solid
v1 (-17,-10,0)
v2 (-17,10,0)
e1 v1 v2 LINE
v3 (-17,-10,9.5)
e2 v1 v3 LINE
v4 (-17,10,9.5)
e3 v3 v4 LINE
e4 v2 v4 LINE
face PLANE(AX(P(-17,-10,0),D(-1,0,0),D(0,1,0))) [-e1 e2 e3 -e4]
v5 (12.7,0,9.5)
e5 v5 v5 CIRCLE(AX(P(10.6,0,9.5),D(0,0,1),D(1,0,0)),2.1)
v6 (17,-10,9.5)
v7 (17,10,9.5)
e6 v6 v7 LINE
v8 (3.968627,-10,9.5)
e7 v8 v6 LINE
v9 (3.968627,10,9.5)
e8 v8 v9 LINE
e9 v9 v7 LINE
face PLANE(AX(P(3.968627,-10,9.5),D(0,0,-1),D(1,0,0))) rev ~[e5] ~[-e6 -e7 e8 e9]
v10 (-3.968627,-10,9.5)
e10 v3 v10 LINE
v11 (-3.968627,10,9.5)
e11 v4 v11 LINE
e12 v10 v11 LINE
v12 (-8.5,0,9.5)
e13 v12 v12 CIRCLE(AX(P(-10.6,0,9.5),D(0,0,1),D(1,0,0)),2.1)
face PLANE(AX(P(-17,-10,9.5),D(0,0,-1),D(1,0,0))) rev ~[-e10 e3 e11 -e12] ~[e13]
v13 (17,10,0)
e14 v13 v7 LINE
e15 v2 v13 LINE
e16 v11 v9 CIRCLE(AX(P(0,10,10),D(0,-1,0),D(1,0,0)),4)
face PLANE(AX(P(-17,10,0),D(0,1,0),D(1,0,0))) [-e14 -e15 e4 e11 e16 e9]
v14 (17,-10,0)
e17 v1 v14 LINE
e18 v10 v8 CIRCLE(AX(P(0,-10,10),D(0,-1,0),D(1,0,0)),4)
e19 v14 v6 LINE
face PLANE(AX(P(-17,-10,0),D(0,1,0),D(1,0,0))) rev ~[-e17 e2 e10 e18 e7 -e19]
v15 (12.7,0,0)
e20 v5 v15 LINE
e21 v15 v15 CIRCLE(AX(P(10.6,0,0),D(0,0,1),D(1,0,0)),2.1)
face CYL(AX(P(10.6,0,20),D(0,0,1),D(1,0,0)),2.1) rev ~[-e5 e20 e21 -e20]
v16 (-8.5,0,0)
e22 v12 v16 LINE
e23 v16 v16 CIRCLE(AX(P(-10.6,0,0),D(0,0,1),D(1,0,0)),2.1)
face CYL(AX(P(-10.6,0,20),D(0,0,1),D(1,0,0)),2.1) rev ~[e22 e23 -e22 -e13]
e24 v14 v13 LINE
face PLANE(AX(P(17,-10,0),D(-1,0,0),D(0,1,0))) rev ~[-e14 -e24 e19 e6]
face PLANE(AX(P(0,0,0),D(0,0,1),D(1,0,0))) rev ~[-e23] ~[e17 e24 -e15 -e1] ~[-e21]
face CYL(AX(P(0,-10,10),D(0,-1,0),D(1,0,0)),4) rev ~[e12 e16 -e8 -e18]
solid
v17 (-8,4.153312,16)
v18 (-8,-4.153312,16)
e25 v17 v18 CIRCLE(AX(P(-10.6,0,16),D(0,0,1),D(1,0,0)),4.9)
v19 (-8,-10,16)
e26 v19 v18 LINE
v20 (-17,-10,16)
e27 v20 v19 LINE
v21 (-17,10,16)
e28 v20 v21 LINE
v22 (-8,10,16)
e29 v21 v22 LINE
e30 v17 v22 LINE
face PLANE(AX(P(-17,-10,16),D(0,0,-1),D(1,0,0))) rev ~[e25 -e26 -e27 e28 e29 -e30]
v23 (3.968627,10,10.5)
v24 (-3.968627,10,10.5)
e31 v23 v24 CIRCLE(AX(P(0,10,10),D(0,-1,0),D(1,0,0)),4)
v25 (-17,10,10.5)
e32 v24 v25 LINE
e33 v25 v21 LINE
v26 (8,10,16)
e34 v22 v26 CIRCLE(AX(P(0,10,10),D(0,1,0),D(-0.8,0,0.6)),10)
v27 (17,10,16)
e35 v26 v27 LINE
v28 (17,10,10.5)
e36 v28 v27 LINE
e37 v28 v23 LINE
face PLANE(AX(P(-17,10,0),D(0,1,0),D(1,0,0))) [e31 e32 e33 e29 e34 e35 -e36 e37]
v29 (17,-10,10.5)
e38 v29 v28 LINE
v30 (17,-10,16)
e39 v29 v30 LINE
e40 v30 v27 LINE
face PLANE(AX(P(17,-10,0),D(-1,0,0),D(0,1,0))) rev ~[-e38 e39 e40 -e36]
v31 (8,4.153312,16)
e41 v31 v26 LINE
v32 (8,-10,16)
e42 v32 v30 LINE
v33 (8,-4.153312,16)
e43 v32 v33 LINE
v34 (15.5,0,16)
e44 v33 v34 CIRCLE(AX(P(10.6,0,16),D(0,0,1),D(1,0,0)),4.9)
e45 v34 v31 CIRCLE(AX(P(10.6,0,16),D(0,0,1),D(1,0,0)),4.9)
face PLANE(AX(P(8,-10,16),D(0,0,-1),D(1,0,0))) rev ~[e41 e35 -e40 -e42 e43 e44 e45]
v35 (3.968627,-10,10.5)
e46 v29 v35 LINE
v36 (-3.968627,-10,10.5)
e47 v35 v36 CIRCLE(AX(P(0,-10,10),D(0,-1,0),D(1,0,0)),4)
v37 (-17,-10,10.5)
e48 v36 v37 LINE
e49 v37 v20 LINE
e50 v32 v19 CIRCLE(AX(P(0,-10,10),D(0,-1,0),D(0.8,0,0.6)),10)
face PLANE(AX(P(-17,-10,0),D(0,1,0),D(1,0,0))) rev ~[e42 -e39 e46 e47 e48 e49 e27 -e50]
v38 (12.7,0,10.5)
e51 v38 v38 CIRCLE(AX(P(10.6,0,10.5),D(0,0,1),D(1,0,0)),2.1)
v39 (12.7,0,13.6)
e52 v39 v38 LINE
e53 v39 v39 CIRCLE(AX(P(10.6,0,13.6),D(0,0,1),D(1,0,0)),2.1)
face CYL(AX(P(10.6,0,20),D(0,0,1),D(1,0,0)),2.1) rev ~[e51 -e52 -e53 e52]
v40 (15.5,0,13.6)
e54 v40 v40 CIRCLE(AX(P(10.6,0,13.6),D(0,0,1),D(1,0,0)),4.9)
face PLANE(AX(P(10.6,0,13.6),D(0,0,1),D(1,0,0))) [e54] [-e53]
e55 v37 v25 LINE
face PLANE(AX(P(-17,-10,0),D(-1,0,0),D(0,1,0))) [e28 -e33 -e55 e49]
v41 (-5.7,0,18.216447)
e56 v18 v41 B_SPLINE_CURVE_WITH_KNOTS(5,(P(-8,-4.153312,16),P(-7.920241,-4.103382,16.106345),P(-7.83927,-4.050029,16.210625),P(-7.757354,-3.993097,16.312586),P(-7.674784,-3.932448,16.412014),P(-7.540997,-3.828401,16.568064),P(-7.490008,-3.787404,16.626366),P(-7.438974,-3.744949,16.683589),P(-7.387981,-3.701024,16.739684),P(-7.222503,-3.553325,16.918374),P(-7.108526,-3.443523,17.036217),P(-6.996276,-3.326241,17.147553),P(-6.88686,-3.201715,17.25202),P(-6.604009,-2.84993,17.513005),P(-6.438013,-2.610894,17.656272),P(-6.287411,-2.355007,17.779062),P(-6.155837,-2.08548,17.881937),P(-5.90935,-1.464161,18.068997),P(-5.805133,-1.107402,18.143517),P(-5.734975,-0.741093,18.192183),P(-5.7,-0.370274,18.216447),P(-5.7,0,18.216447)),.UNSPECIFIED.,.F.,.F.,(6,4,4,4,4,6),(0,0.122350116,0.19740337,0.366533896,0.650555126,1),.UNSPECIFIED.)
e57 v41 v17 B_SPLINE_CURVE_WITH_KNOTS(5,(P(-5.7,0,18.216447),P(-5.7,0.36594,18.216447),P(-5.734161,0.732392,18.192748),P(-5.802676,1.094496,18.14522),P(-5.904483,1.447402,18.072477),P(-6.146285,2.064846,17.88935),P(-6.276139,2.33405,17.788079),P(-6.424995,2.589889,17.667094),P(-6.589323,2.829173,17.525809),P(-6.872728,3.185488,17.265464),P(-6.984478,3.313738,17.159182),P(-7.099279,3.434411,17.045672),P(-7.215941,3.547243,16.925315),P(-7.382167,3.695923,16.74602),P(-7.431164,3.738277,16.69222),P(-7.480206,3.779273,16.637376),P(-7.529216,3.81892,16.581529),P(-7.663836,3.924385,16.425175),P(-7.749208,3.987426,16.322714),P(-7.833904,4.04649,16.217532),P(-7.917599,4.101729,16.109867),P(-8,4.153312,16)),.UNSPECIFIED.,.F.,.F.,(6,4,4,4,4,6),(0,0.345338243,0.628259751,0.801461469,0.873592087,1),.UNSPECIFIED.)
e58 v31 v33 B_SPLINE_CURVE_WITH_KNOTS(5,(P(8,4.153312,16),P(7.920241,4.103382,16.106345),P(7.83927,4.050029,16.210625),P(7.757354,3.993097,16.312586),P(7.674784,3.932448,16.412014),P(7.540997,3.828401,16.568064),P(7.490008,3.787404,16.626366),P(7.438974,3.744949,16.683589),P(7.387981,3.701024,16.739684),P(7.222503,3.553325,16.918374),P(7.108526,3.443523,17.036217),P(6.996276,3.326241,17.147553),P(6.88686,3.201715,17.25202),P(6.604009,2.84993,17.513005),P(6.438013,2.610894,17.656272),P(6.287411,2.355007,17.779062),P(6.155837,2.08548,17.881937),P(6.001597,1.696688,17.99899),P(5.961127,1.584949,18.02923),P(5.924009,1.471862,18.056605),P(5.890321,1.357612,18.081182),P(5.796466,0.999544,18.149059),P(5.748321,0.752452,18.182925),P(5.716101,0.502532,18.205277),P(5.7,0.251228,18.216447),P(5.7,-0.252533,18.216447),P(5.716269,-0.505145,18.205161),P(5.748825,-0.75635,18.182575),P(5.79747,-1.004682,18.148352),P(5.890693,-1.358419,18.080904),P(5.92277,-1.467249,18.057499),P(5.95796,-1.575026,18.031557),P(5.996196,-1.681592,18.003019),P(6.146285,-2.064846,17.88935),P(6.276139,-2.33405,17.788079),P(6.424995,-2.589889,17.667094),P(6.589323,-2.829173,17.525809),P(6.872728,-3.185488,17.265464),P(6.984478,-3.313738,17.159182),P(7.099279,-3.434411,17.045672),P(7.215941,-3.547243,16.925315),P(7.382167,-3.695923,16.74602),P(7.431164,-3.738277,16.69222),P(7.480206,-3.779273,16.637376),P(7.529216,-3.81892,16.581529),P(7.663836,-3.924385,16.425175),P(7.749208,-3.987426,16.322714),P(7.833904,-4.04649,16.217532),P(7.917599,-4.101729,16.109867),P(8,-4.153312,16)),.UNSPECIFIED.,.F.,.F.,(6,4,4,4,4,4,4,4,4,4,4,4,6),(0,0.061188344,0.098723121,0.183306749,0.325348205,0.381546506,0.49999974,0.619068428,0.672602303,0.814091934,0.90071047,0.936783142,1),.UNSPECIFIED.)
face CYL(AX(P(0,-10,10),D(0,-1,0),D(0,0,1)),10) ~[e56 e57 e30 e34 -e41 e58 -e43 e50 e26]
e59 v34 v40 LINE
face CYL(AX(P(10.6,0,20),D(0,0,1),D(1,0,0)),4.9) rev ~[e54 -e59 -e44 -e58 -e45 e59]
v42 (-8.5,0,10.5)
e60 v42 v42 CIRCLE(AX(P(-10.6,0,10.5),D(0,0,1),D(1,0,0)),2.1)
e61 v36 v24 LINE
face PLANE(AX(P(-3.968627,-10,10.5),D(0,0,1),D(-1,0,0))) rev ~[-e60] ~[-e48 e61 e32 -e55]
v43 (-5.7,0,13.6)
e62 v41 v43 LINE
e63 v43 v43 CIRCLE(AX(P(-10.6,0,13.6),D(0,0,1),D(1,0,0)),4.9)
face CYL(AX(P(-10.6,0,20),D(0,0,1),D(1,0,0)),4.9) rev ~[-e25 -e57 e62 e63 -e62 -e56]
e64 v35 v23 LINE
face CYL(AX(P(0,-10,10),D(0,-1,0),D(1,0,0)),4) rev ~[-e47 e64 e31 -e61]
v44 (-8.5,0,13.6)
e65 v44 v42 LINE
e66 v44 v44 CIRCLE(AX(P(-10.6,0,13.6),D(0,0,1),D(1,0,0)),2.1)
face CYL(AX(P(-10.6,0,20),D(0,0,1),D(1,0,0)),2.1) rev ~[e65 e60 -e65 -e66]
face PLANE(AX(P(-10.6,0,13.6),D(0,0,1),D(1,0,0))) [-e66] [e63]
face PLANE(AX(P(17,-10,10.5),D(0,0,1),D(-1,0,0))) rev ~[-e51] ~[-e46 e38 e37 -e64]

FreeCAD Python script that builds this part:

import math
import FreeCAD as App
import Part
import Sketcher

doc = App.newDocument("Part")
params = doc.addObject("Spreadsheet::Sheet", "Params")
for row, (alias, value) in enumerate([
    ("sketch1_width", "34 mm"),
    ("sketch1_height", "20 mm"),
    ("pad1_length", "20 mm"),
    ("sketch2_diameter", "8 mm"),
    ("sketch3_diameter", "9.8 mm"),
    ("sketch3_diameter2", "4.2 mm"),
    ("pocket2_length", "6.4 mm"),
    ("sketch4_diameter", "4.2 mm"),
    ("sketch5_radius", "10 mm"),
    ("sketch5_radius2", "4 mm"),
    ("sketch5_width", "17 mm"),
    ("sketch5_width2", "9 mm"),
    ("sketch5_height", "1 mm"),
], start=1):
    params.set(f"A{row}", alias)
    params.set(f"B{row}", "=" + value)
    params.setAlias(f"B{row}", alias)

body = doc.addObject("PartDesign::Body", "Body")
body.AllowCompound = True

# Sketch on XY plane
sketch1 = body.newObject("Sketcher::SketchObject", "Sketch")
sketch1.AttachmentSupport = (doc.getObject("XY_Plane"), [""])
sketch1.MapMode = "FlatFace"
sketch1.addGeometry([
    Part.LineSegment(App.Vector(-17, 10, 0), App.Vector(-17, -10, 0)),
    Part.LineSegment(App.Vector(-17, -10, 0), App.Vector(17, -10, 0)),
    Part.LineSegment(App.Vector(17, -10, 0), App.Vector(17, 10, 0)),
    Part.LineSegment(App.Vector(17, 10, 0), App.Vector(-17, 10, 0)),
], False)
sketch1.addConstraint([
    Sketcher.Constraint("Coincident", 0, 2, 1, 1),
    Sketcher.Constraint("Coincident", 1, 2, 2, 1),
    Sketcher.Constraint("Coincident", 2, 2, 3, 1),
    Sketcher.Constraint("Coincident", 3, 2, 0, 1),
    Sketcher.Constraint("Vertical", 0),
    Sketcher.Constraint("Horizontal", 1),
    Sketcher.Constraint("Vertical", 2),
    Sketcher.Constraint("Horizontal", 3),
    Sketcher.Constraint("Symmetric", 0, 2, 2, 2, -1, 1),
    Sketcher.Constraint("DistanceX", 1, 1, 1, 2, 34.0),
    Sketcher.Constraint("DistanceY", 0, 2, 0, 1, 20.0),
])
sketch1.setExpression("Constraints[9]", "Params.sketch1_width")
sketch1.setExpression("Constraints[10]", "Params.sketch1_height")
pad1 = body.newObject("PartDesign::Pad", "Pad")
pad1.Profile = sketch1
pad1.setExpression("Length", "Params.pad1_length")

# Sketch on XZ plane
sketch2 = body.newObject("Sketcher::SketchObject", "Sketch001")
sketch2.AttachmentSupport = (doc.getObject("XZ_Plane"), [""])
sketch2.MapMode = "FlatFace"
sketch2.AttachmentOffset = App.Placement(App.Vector(0, 0, 10), App.Rotation())
sketch2.addGeometry(Part.Circle(App.Vector(0, 10, 0), App.Vector(0, 0, 1), 4), False)
sketch2.addConstraint([
    Sketcher.Constraint("PointOnObject", 0, 3, -2),
    Sketcher.Constraint("Diameter", 0, 8.0),
    Sketcher.Constraint("DistanceY", -1, 1, 0, 3, 10.0),
])
sketch2.setExpression("Constraints[1]", "Params.sketch2_diameter")
pocket1 = body.newObject("PartDesign::Pocket", "Pocket")
pocket1.Profile = sketch2
pocket1.Type = "ThroughAll"

# Sketch on XY plane
sketch3 = body.newObject("Sketcher::SketchObject", "Sketch002")
sketch3.AttachmentSupport = (doc.getObject("XY_Plane"), [""])
sketch3.MapMode = "FlatFace"
sketch3.AttachmentOffset = App.Placement(App.Vector(0, 0, 20), App.Rotation())
sketch3.addGeometry([
    Part.Circle(App.Vector(-10.6, 0, 0), App.Vector(0, 0, 1), 4.9),
    Part.Circle(App.Vector(-10.6, 0, 0), App.Vector(0, 0, 1), 2.1),
    Part.Circle(App.Vector(10.6, 0, 0), App.Vector(0, 0, 1), 4.9),
    Part.Circle(App.Vector(10.6, 0, 0), App.Vector(0, 0, 1), 2.1),
], False)
sketch3.addConstraint([
    Sketcher.Constraint("Coincident", 1, 3, 0, 3),
    Sketcher.Constraint("Coincident", 3, 3, 2, 3),
    Sketcher.Constraint("Equal", 0, 2),
    Sketcher.Constraint("Equal", 1, 3),
    Sketcher.Constraint("Symmetric", 0, 3, 2, 3, -1, 1),
    Sketcher.Constraint("PointOnObject", 0, 3, -1),
    Sketcher.Constraint("Diameter", 0, 9.8),
    Sketcher.Constraint("Diameter", 1, 4.2),
    Sketcher.Constraint("DistanceX", 0, 3, -1, 1, 10.6),
])
sketch3.setExpression("Constraints[6]", "Params.sketch3_diameter")
sketch3.setExpression("Constraints[7]", "Params.sketch3_diameter2")
pocket2 = body.newObject("PartDesign::Pocket", "Pocket001")
pocket2.Profile = sketch3
pocket2.setExpression("Length", "Params.pocket2_length")

# Sketch on XY plane
sketch4 = body.newObject("Sketcher::SketchObject", "Sketch003")
sketch4.AttachmentSupport = (doc.getObject("XY_Plane"), [""])
sketch4.MapMode = "FlatFace"
sketch4.AttachmentOffset = App.Placement(App.Vector(0, 0, 20), App.Rotation())
sketch4.addGeometry([
    Part.Circle(App.Vector(-10.6, 0, 0), App.Vector(0, 0, 1), 2.1),
    Part.Circle(App.Vector(10.6, 0, 0), App.Vector(0, 0, 1), 2.1),
], False)
sketch4.addConstraint([
    Sketcher.Constraint("Equal", 0, 1),
    Sketcher.Constraint("Symmetric", 0, 3, 1, 3, -1, 1),
    Sketcher.Constraint("PointOnObject", 0, 3, -1),
    Sketcher.Constraint("Diameter", 0, 4.2),
    Sketcher.Constraint("DistanceX", 0, 3, -1, 1, 10.6),
])
sketch4.setExpression("Constraints[3]", "Params.sketch4_diameter")
pocket3 = body.newObject("PartDesign::Pocket", "Pocket002")
pocket3.Profile = sketch4
pocket3.Type = "ThroughAll"

# Sketch on XZ plane
sketch5 = body.newObject("Sketcher::SketchObject", "Sketch004")
sketch5.AttachmentSupport = (doc.getObject("XZ_Plane"), [""])
sketch5.MapMode = "FlatFace"
sketch5.AttachmentOffset = App.Placement(App.Vector(0, 0, 10), App.Rotation())
sketch5.addGeometry([
    Part.ArcOfCircle(Part.Circle(App.Vector(0, 10, 0), App.Vector(0, 0, 1), 10), math.radians(90), math.radians(143.130102)),  # 0
    Part.LineSegment(App.Vector(0, 20, 0), App.Vector(-17, 20, 0)),  # 1
    Part.LineSegment(App.Vector(-17, 20, 0), App.Vector(-17, 16, 0)),  # 2
    Part.LineSegment(App.Vector(-17, 16, 0), App.Vector(-8, 16, 0)),  # 3
    Part.ArcOfCircle(Part.Circle(App.Vector(0, 10, 0), App.Vector(0, 0, 1), 10), math.radians(36.869898), math.radians(90)),  # 4
    Part.LineSegment(App.Vector(8, 16, 0), App.Vector(17, 16, 0)),  # 5
    Part.LineSegment(App.Vector(17, 16, 0), App.Vector(17, 20, 0)),  # 6
    Part.LineSegment(App.Vector(17, 20, 0), App.Vector(0, 20, 0)),  # 7
    Part.ArcOfCircle(Part.Circle(App.Vector(0, 10, 0), App.Vector(0, 0, 1), 4), math.radians(0), math.radians(7.180756)),  # 8
    Part.ArcOfCircle(Part.Circle(App.Vector(0, 10, 0), App.Vector(0, 0, 1), 4), math.radians(-7.180756), math.radians(0)),  # 9
    Part.LineSegment(App.Vector(3.968627, 9.5, 0), App.Vector(17, 9.5, 0)),  # 10
    Part.LineSegment(App.Vector(17, 9.5, 0), App.Vector(17, 10.5, 0)),  # 11
    Part.LineSegment(App.Vector(17, 10.5, 0), App.Vector(3.968627, 10.5, 0)),  # 12
    Part.ArcOfCircle(Part.Circle(App.Vector(0, 10, 0), App.Vector(0, 0, 1), 4), math.radians(172.819244), math.radians(187.180756)),  # 13
    Part.LineSegment(App.Vector(-3.968627, 10.5, 0), App.Vector(-17, 10.5, 0)),  # 14
    Part.LineSegment(App.Vector(-17, 10.5, 0), App.Vector(-17, 9.5, 0)),  # 15
    Part.LineSegment(App.Vector(-17, 9.5, 0), App.Vector(-3.968627, 9.5, 0)),  # 16
], False)
sketch5.addConstraint([
    Sketcher.Constraint("Tangent", 0, 1, 1, 1),
    Sketcher.Constraint("Coincident", 1, 2, 2, 1),
    Sketcher.Constraint("Coincident", 2, 2, 3, 1),
    Sketcher.Constraint("Coincident", 3, 2, 0, 2),
    Sketcher.Constraint("Coincident", 4, 1, 5, 1),
    Sketcher.Constraint("Coincident", 5, 2, 6, 1),
    Sketcher.Constraint("Coincident", 6, 2, 7, 1),
    Sketcher.Constraint("Tangent", 7, 2, 4, 2),
    Sketcher.Constraint("Tangent", 8, 1, 9, 2),
    Sketcher.Constraint("Coincident", 9, 1, 10, 1),
    Sketcher.Constraint("Coincident", 10, 2, 11, 1),
    Sketcher.Constraint("Coincident", 11, 2, 12, 1),
    Sketcher.Constraint("Coincident", 12, 2, 8, 2),
    Sketcher.Constraint("Coincident", 13, 1, 14, 1),
    Sketcher.Constraint("Coincident", 14, 2, 15, 1),
    Sketcher.Constraint("Coincident", 15, 2, 16, 1),
    Sketcher.Constraint("Coincident", 16, 2, 13, 2),
    Sketcher.Constraint("Horizontal", 1),
    Sketcher.Constraint("Vertical", 2),
    Sketcher.Constraint("Horizontal", 3),
    Sketcher.Constraint("Horizontal", 5),
    Sketcher.Constraint("Vertical", 6),
    Sketcher.Constraint("Horizontal", 7),
    Sketcher.Constraint("Horizontal", 10),
    Sketcher.Constraint("Vertical", 11),
    Sketcher.Constraint("Horizontal", 12),
    Sketcher.Constraint("Horizontal", 14),
    Sketcher.Constraint("Vertical", 15),
    Sketcher.Constraint("Horizontal", 16),
    Sketcher.Constraint("Coincident", 4, 3, 0, 3),
    Sketcher.Constraint("Coincident", 8, 3, 0, 3),
    Sketcher.Constraint("Coincident", 13, 3, 0, 3),
    Sketcher.Constraint("Equal", 0, 4),
    Sketcher.Constraint("Equal", 8, 9),
    Sketcher.Constraint("Equal", 9, 13),
    Sketcher.Constraint("Symmetric", 3, 2, 4, 1, -2),
    Sketcher.Constraint("Symmetric", 11, 2, 14, 2, -2),
    Sketcher.Constraint("Horizontal", 13, 3, 8, 1),
    Sketcher.Constraint("Horizontal", 10, 2, 15, 2),
    Sketcher.Constraint("Vertical", 6, 2, 10, 2),
    Sketcher.Constraint("Vertical", 9, 1, 12, 2),
    Sketcher.Constraint("Vertical", 2, 2, 14, 2),
    Sketcher.Constraint("Radius", 0, 10.0),
    Sketcher.Constraint("Radius", 8, 4.0),
    Sketcher.Constraint("DistanceX", 1, 2, 1, 1, 17.0),
    Sketcher.Constraint("DistanceX", 3, 1, 3, 2, 9.0),
    Sketcher.Constraint("DistanceY", 11, 1, 11, 2, 1.0),
    Sketcher.Constraint("DistanceY", -1, 1, 0, 3, 10.0),
])
sketch5.setExpression("Constraints[42]", "Params.sketch5_radius")
sketch5.setExpression("Constraints[43]", "Params.sketch5_radius2")
sketch5.setExpression("Constraints[44]", "Params.sketch5_width")
sketch5.setExpression("Constraints[45]", "Params.sketch5_width2")
sketch5.setExpression("Constraints[46]", "Params.sketch5_height")
pocket4 = body.newObject("PartDesign::Pocket", "Pocket003")
pocket4.Profile = sketch5
pocket4.Type = "ThroughAll"

doc.recompute()
